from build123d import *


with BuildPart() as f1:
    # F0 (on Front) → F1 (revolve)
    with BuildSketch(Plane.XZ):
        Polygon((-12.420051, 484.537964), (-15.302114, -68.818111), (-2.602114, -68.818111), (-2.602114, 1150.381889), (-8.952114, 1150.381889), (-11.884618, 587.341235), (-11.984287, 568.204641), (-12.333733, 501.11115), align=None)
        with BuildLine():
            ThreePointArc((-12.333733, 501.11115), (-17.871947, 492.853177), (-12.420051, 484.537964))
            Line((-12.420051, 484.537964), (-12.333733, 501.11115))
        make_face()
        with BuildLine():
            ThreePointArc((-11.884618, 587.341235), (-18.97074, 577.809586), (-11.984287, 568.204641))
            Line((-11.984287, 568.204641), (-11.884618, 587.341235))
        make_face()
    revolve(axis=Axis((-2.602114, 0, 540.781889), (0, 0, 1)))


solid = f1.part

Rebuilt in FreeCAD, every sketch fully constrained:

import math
import FreeCAD as App
import Part
import Sketcher
Q = App.Units.Quantity

doc = App.newDocument("Part")
body = doc.addObject("PartDesign::Body", "Body")

sketch1 = doc.addObject("Sketcher::SketchObject", "Sketch")
body.addObject(sketch1)
sketch1.AttachmentSupport = (doc.XZ_Plane, [""])
sketch1.MapMode = "FlatFace"
sketch1.addGeometry([
    Part.LineSegment(App.Vector(-12.420051, 484.537964, 0), App.Vector(-15.302114, -68.818111, 0)),
    Part.LineSegment(App.Vector(-15.302114, -68.818111, 0), App.Vector(-2.602114, -68.818111, 0)),
    Part.LineSegment(App.Vector(-2.602114, -68.818111, 0), App.Vector(-2.602114, 1150.381889, 0)),
    Part.LineSegment(App.Vector(-2.602114, 1150.381889, 0), App.Vector(-8.952114, 1150.381889, 0)),
    Part.LineSegment(App.Vector(-8.952114, 1150.381889, 0), App.Vector(-11.884618, 587.341235, 0)),
    Part.ArcOfCircle(Part.Circle(App.Vector(-8.946871, 577.757378, 0), App.Vector(0, 0, 1), 10.024005), math.radians(107.041913), math.radians(252.361266)),
    Part.LineSegment(App.Vector(-11.984287, 568.204641, 0), App.Vector(-12.333733, 501.11115, 0)),
    Part.ArcOfCircle(Part.Circle(App.Vector(-8.876291, 492.806325, 0), App.Vector(0, 0, 1), 8.995778), math.radians(112.602807), math.radians(246.800372)),
], False)
sketch1.addGeometry(Part.LineSegment(App.Vector(-2.602114, -68.818111, 0), App.Vector(-2.602114, 1150.381889, 0)), True)
sketch1.addConstraint([
    Sketcher.Constraint("Coincident", 0, 2, 1, 1),
    Sketcher.Constraint("Coincident", 1, 2, 2, 1),
    Sketcher.Constraint("Coincident", 2, 2, 3, 1),
    Sketcher.Constraint("Coincident", 3, 2, 4, 1),
    Sketcher.Constraint("Coincident", 4, 2, 5, 1),
    Sketcher.Constraint("Coincident", 5, 2, 6, 1),
    Sketcher.Constraint("Coincident", 6, 2, 7, 1),
    Sketcher.Constraint("Coincident", 7, 2, 0, 1),
    Sketcher.Constraint("Horizontal", 1),
    Sketcher.Constraint("Vertical", 2),
    Sketcher.Constraint("Horizontal", 3),
    Sketcher.Constraint("Vertical", 8),
    Sketcher.Constraint("Coincident", 8, 1, 1, 2),
    Sketcher.Constraint("Parallel", 0, 4),
    Sketcher.Constraint("Parallel", 4, 6),
    Sketcher.Constraint("Horizontal", 3, 2, 8, 2),
    Sketcher.Constraint("DistanceY", 2, 1, 2, 2, Q("48 in")),
    Sketcher.Constraint("DistanceX", 1, 1, 1, 2, Q("0.5 in")),
    Sketcher.Constraint("DistanceX", 3, 2, 3, 1, Q("0.25 in")),
    Sketcher.Constraint("Radius", 7, Q("8.995778 mm")),
    Sketcher.Constraint("Radius", 5, Q("10.024005 mm")),
    Sketcher.Constraint("Distance", 6, Q("67.094401 mm")),
    Sketcher.Constraint("Distance", 0, Q("553.36358 mm")),
    Sketcher.Constraint("Distance", 4, Q("563.048291 mm")),
    Sketcher.Constraint("DistanceX", 5, 3, -1, 1, Q("8.946871 mm")),
    Sketcher.Constraint("DistanceX", 7, 3, -1, 1, Q("8.876291 mm")),
    Sketcher.Constraint("DistanceY", 0, 2, -1, 1, Q("68.818111 mm")),
    Sketcher.Constraint("DistanceY", -1, 1, 5, 2, Q("568.204641 mm")),
    Sketcher.Constraint("DistanceX", 7, 2, -1, 1, Q("12.420051 mm")),
])
revolution = doc.addObject("PartDesign::Revolution", "Revolution")
body.addObject(revolution)
revolution.Profile = sketch1
revolution.ReferenceAxis = (sketch1, ["Axis0"])
revolution.Angle = 360

doc.recompute()
